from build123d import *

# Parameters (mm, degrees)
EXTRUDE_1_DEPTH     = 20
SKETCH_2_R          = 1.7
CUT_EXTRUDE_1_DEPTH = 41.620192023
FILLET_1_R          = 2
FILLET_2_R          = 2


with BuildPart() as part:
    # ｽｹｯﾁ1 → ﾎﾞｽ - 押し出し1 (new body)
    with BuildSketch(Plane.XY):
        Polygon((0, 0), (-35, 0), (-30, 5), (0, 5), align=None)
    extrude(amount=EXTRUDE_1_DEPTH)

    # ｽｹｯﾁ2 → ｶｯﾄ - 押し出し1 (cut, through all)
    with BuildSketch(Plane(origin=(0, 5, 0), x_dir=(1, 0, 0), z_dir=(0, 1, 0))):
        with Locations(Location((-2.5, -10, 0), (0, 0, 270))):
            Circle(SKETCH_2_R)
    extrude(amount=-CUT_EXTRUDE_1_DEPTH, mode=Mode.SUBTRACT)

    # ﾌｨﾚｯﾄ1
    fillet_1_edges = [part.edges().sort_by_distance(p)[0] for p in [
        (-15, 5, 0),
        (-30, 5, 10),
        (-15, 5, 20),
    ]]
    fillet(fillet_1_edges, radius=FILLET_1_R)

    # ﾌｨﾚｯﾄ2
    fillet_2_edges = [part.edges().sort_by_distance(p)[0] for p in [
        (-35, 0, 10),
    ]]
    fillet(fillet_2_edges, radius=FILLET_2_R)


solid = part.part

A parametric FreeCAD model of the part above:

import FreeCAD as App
import Part
import Sketcher

V = App.Vector
Q = App.Units.Quantity


def edges_at(feature, points):
    """Names of the edges that pass closest to the given points."""
    edges = feature.Shape.Edges
    near = lambda p: min(range(len(edges)), key=lambda i: edges[i].distToShape(Part.Vertex(*p))[0])
    return sorted({f"Edge{near(p) + 1}" for p in points})


def add_polygon(sketch, points):
    """Adds a closed chain of lines whose ends are joined by coincident constraints."""
    first, n = sketch.GeometryCount, len(points)
    for a, b in zip(points, points[1:] + points[:1]):
        sketch.addGeometry(Part.LineSegment(App.Vector(*a, 0), App.Vector(*b, 0)), False)
    for i in range(n):
        sketch.addConstraint(Sketcher.Constraint("Coincident", first + i, 2, first + (i + 1) % n, 1))

doc = App.newDocument("Part")
body = doc.addObject("PartDesign::Body", "Body")

sketch1 = body.newObject("Sketcher::SketchObject", "Sketch")
sketch1.AttachmentSupport = (doc.getObject("XY_Plane"), [""])
sketch1.MapMode = "FlatFace"
add_polygon(sketch1, [(-35, 0), (0, 0), (0, 5), (-30, 5)])
sketch1.addConstraint([
    Sketcher.Constraint("Horizontal", 0),
    Sketcher.Constraint("Vertical", 1),
    Sketcher.Constraint("Horizontal", 2),
    Sketcher.Constraint("Coincident", 0, 2, -1, 1),
    Sketcher.Constraint("DistanceX", 0, 1, 0, 2, Q("35 mm")),
    Sketcher.Constraint("DistanceX", 2, 2, 2, 1, Q("30 mm")),
    Sketcher.Constraint("DistanceY", 1, 1, 1, 2, Q("5 mm")),
])
pad1 = body.newObject("PartDesign::Pad", "Pad")
pad1.Profile = sketch1
pad1.Length = 20

sketch2 = body.newObject("Sketcher::SketchObject", "Sketch001")
sketch2.AttachmentSupport = (doc.getObject("XZ_Plane"), [""])
sketch2.MapMode = "FlatFace"
sketch2.AttachmentOffset = App.Placement(V(0, 0, -5), App.Rotation())
sketch2.addGeometry(Part.Circle(V(-2.5, 10, 0), V(0, 0, 1), 1.7), False)
sketch2.addConstraint([
    Sketcher.Constraint("Diameter", 0, Q("3.4 mm")),
    Sketcher.Constraint("DistanceY", -1, 1, 0, 3, Q("10 mm")),
    Sketcher.Constraint("DistanceX", 0, 3, -1, 1, Q("2.5 mm")),
])
pocket1 = body.newObject("PartDesign::Pocket", "Pocket")
pocket1.Profile = sketch2
pocket1.Type = "ThroughAll"
pocket1.Reversed = True
doc.recompute()

fillet = body.newObject("PartDesign::Fillet", "Fillet")
fillet.Base = (pocket1, edges_at(pocket1, [(-15, 5, 0), (-30, 5, 10), (-15, 5, 20)]))
fillet.Radius = 2
doc.recompute()

fillet2 = body.newObject("PartDesign::Fillet", "Fillet001")
fillet2.Base = (fillet, edges_at(fillet, [(-35, 0, 10)]))
fillet2.Radius = 2

doc.recompute()
